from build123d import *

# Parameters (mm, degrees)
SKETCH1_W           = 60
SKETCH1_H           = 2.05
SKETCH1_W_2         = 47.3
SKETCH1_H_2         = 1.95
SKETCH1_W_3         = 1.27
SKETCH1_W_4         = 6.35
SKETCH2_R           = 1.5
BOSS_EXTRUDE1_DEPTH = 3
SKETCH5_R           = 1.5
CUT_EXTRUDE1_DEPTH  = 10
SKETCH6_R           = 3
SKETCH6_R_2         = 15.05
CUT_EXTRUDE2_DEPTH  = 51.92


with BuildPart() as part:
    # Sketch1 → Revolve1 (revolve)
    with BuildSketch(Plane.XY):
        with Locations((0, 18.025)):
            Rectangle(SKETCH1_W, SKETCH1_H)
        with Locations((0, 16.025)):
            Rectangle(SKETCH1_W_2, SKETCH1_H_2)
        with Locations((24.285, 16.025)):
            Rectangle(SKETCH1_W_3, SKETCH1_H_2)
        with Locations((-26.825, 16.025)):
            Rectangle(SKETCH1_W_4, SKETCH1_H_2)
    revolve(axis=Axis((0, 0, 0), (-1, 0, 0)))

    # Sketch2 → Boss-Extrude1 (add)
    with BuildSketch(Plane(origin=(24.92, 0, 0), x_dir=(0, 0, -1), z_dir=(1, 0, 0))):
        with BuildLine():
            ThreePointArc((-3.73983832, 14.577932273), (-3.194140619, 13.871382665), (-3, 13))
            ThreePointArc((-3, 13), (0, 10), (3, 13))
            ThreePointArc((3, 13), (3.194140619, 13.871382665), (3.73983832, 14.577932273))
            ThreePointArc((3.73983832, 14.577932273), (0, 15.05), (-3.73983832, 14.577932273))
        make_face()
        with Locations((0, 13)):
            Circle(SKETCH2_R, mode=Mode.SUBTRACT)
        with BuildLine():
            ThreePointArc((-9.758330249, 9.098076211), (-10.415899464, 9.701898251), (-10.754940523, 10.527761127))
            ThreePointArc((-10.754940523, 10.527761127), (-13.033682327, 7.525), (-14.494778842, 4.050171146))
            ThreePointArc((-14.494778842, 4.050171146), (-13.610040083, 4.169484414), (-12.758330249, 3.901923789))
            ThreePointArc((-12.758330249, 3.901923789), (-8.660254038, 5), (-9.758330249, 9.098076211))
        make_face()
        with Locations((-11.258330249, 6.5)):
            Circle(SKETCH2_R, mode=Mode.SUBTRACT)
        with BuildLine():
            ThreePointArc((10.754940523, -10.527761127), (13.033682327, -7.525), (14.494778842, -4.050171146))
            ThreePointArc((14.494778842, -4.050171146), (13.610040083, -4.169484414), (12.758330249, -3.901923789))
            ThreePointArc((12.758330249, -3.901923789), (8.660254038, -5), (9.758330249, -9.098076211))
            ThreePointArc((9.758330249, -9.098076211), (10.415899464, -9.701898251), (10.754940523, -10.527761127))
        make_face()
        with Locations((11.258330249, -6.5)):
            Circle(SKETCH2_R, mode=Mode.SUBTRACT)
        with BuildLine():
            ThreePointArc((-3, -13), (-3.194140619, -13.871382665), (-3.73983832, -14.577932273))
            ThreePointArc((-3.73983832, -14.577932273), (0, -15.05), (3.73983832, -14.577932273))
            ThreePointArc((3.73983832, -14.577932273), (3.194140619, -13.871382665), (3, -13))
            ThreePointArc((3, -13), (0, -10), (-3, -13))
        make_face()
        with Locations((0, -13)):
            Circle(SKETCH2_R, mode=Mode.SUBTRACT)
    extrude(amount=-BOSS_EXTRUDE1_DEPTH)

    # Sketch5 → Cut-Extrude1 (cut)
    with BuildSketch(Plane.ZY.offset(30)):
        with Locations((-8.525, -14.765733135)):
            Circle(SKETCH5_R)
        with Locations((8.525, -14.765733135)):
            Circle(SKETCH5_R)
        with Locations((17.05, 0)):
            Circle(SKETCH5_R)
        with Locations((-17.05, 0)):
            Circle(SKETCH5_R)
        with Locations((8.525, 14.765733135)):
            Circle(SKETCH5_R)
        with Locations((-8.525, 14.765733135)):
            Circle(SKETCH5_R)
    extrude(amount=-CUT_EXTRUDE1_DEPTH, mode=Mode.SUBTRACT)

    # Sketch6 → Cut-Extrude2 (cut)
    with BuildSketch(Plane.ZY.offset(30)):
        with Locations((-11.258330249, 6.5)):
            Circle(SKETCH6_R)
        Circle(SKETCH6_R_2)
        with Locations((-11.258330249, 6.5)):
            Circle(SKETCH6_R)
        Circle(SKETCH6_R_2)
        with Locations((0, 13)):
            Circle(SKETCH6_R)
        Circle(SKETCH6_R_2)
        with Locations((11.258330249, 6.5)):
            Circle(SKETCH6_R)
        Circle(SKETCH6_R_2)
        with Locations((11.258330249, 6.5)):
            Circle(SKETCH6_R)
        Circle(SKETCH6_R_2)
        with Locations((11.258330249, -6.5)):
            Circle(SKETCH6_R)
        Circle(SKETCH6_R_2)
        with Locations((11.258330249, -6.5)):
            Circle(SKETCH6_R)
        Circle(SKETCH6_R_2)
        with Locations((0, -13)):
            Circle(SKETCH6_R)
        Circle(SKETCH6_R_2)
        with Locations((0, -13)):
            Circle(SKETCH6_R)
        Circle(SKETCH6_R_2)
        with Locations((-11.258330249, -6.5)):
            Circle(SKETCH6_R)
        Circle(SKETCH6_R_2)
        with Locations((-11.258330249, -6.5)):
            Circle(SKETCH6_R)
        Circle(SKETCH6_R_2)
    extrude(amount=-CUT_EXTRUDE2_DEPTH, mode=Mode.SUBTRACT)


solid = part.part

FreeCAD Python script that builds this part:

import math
import FreeCAD as App
import Part
import Sketcher

V = App.Vector

doc = App.newDocument("Part")
body = doc.addObject("PartDesign::Body", "Body")

sketch1 = body.newObject("Sketcher::SketchObject", "Sketch")
sketch1.AttachmentSupport = (doc.getObject("XY_Plane"), [""])
sketch1.MapMode = "FlatFace"
sketch1.addGeometry([
    Part.LineSegment(V(-30, 19.1, 0), V(-30, 15.1, 0)),
    Part.LineSegment(V(-30, 15.1, 0), V(24.9, 15.1, 0)),
    Part.LineSegment(V(24.9, 15.1, 0), V(24.9, 17, 0)),
    Part.LineSegment(V(24.9, 17, 0), V(30, 17, 0)),
    Part.LineSegment(V(30, 17, 0), V(30, 19.1, 0)),
    Part.LineSegment(V(30, 19.1, 0), V(-30, 19.1, 0)),
], False)
sketch1.addConstraint([
    Sketcher.Constraint("Coincident", 0, 2, 1, 1),
    Sketcher.Constraint("Coincident", 1, 2, 2, 1),
    Sketcher.Constraint("Coincident", 2, 2, 3, 1),
    Sketcher.Constraint("Coincident", 3, 2, 4, 1),
    Sketcher.Constraint("Coincident", 4, 2, 5, 1),
    Sketcher.Constraint("Coincident", 5, 2, 0, 1),
    Sketcher.Constraint("Vertical", 0),
    Sketcher.Constraint("Horizontal", 1),
    Sketcher.Constraint("Vertical", 2),
    Sketcher.Constraint("Horizontal", 3),
    Sketcher.Constraint("Vertical", 4),
    Sketcher.Constraint("Horizontal", 5),
    Sketcher.Constraint("DistanceX", 5, 2, 5, 1, 60.0),
    Sketcher.Constraint("DistanceY", 0, 2, 0, 1, 4.0),
    Sketcher.Constraint("DistanceX", 0, 2, -1, 1, 30.0),
    Sketcher.Constraint("DistanceY", -1, 1, 2, 2, 17.0),
    Sketcher.Constraint("DistanceX", 1, 1, 1, 2, 54.92),
    Sketcher.Constraint("DistanceY", 2, 1, 2, 2, 1.95),
])
revolution = body.newObject("PartDesign::Revolution", "Revolution")
revolution.Profile = sketch1
revolution.ReferenceAxis = (sketch1, ["H_Axis"])
revolution.Angle = 360

sketch2 = body.newObject("Sketcher::SketchObject", "Sketch001")
sketch2.AttachmentSupport = (doc.getObject("YZ_Plane"), [""])
sketch2.MapMode = "FlatFace"
sketch2.AttachmentOffset = App.Placement(V(0, 0, 24.92), App.Rotation())
sketch2.addGeometry([
    Part.ArcOfCircle(Part.Circle(V(13, 5.1, 0), V(0, 0, 1), 2.1), math.radians(-90), math.radians(-40)),
    Part.ArcOfCircle(Part.Circle(V(13, 0, 0), V(0, 0, 1), 3), math.radians(90), math.radians(270)),
    Part.ArcOfCircle(Part.Circle(V(13, -5.1, 0), V(0, 0, 1), 2.1), math.radians(40), math.radians(90)),
    Part.ArcOfCircle(Part.Circle(V(0, 0, 0), V(0, 0, 1), 15.1), math.radians(-14), math.radians(14)),
    Part.Circle(V(13, 0, 0), V(0, 0, 1), 1.5),
    Part.ArcOfCircle(Part.Circle(V(10.9, 8.7, 0), V(0, 0, 1), 2.1), math.radians(100), math.radians(150)),
    Part.ArcOfCircle(Part.Circle(V(0, 0, 0), V(0, 0, 1), 15), math.radians(46), math.radians(74)),
    Part.ArcOfCircle(Part.Circle(V(2.1, 13.8, 0), V(0, 0, 1), 2.1), math.radians(-30), math.radians(20)),
    Part.ArcOfCircle(Part.Circle(V(6.5, 11.3, 0), V(0, 0, 1), 3), math.radians(150), math.radians(330)),
    Part.Circle(V(6.5, 11.3, 0), V(0, 0, 1), 1.5),
    Part.ArcOfCircle(Part.Circle(V(0, 0, 0), V(0, 0, 1), 15), math.radians(-134), math.radians(-106)),
    Part.ArcOfCircle(Part.Circle(V(-2.1, -13.8, 0), V(0, 0, 1), 2.1), math.radians(150), math.radians(200)),
    Part.ArcOfCircle(Part.Circle(V(-6.5, -11.3, 0), V(0, 0, 1), 3), math.radians(-30), math.radians(150)),
    Part.ArcOfCircle(Part.Circle(V(-10.9, -8.7, 0), V(0, 0, 1), 2.1), math.radians(-80), math.radians(-30)),
    Part.Circle(V(-6.5, -11.3, 0), V(0, 0, 1), 1.5),
    Part.ArcOfCircle(Part.Circle(V(-13, 5.1, 0), V(0, 0, 1), 2.1), math.radians(-140), math.radians(-90)),
    Part.ArcOfCircle(Part.Circle(V(0, 0, 0), V(0, 0, 1), 15.1), math.radians(166), math.radians(194)),
    Part.ArcOfCircle(Part.Circle(V(-13, -5.1, 0), V(0, 0, 1), 2.1), math.radians(90), math.radians(140)),
    Part.ArcOfCircle(Part.Circle(V(-13, 0, 0), V(0, 0, 1), 3), math.radians(-90), math.radians(90)),
    Part.Circle(V(-13, 0, 0), V(0, 0, 1), 1.5),
], False)
sketch2.addConstraint([
    Sketcher.Constraint("Tangent", 0, 1, 1, 1),
    Sketcher.Constraint("Tangent", 1, 2, 2, 2),
    Sketcher.Constraint("Coincident", 2, 1, 3, 1),
    Sketcher.Constraint("Coincident", 3, 2, 0, 2),
    Sketcher.Constraint("Coincident", 5, 1, 6, 1),
    Sketcher.Constraint("Coincident", 6, 2, 7, 2),
    Sketcher.Constraint("Tangent", 7, 1, 8, 1),
    Sketcher.Constraint("Tangent", 8, 2, 5, 2),
    Sketcher.Constraint("Coincident", 10, 2, 11, 2),
    Sketcher.Constraint("Tangent", 11, 1, 12, 1),
    Sketcher.Constraint("Tangent", 12, 2, 13, 2),
    Sketcher.Constraint("Coincident", 13, 1, 10, 1),
    Sketcher.Constraint("Coincident", 15, 1, 16, 1),
    Sketcher.Constraint("Coincident", 16, 2, 17, 2),
    Sketcher.Constraint("Tangent", 17, 1, 18, 1),
    Sketcher.Constraint("Tangent", 18, 2, 15, 2),
    Sketcher.Constraint("Coincident", 3, 3, -1, 1),
    Sketcher.Constraint("Coincident", 6, 3, -1, 1),
    Sketcher.Constraint("Coincident", 10, 3, -1, 1),
    Sketcher.Constraint("Coincident", 16, 3, -1, 1),
    Sketcher.Constraint("Coincident", 4, 3, 1, 3),
    Sketcher.Constraint("Coincident", 9, 3, 8, 3),
    Sketcher.Constraint("Coincident", 14, 3, 12, 3),
    Sketcher.Constraint("Coincident", 19, 3, 18, 3),
    Sketcher.Constraint("Equal", 0, 2),
    Sketcher.Constraint("Equal", 2, 5),
    Sketcher.Constraint("Equal", 3, 6),
    Sketcher.Constraint("Equal", 5, 7),
    Sketcher.Constraint("Equal", 1, 8),
    Sketcher.Constraint("Equal", 4, 9),
    Sketcher.Constraint("Equal", 6, 10),
    Sketcher.Constraint("Equal", 7, 11),
    Sketcher.Constraint("Equal", 8, 12),
    Sketcher.Constraint("Equal", 11, 13),
    Sketcher.Constraint("Equal", 9, 14),
    Sketcher.Constraint("Equal", 13, 15),
    Sketcher.Constraint("Equal", 10, 16),
    Sketcher.Constraint("Equal", 15, 17),
    Sketcher.Constraint("Equal", 12, 18),
    Sketcher.Constraint("Equal", 14, 19),
    Sketcher.Constraint("Symmetric", 7, 3, 11, 3, -1, 1),
    Sketcher.Constraint("Symmetric", 2, 3, 15, 3, -1, 1),
    Sketcher.Constraint("Symmetric", 0, 3, 15, 3, -2),
    Sketcher.Constraint("Horizontal", 2, 1, 16, 2),
    Sketcher.Constraint("Vertical", 0, 3, 1, 3),
    Sketcher.Constraint("Vertical", 17, 3, 18, 3),
    Sketcher.Constraint("Diameter", 4, 3.0),
    Sketcher.Constraint("Radius", 1, 3.0),
    Sketcher.Constraint("Radius", 3, 15.05),
    Sketcher.Constraint("DistanceX", -1, 1, 0, 3, 13.0),
    Sketcher.Constraint("DistanceY", 8, 2, 7, 1, 3.0),
    Sketcher.Constraint("DistanceY", 11, 1, 12, 2, 3.0),
    Sketcher.Constraint("DistanceX", -1, 1, 8, 3, 6.5),
    Sketcher.Constraint("DistanceX", 12, 3, -1, 1, 6.5),
    Sketcher.Constraint("DistanceY", 8, 3, 7, 1, 1.5),
    Sketcher.Constraint("Radius", 0, 2.052632),
    Sketcher.Constraint("DistanceY", 0, 3, 8, 3, 6.205699),
])
pad1 = body.newObject("PartDesign::Pad", "Pad")
pad1.Profile = sketch2
pad1.Length = 3
pad1.Reversed = True

sketch3 = body.newObject("Sketcher::SketchObject", "Sketch002")
sketch3.AttachmentSupport = (doc.getObject("YZ_Plane"), [""])
sketch3.MapMode = "FlatFace"
sketch3.AttachmentOffset = App.Placement(V(0, 0, -30), App.Rotation())
sketch3.addGeometry([
    Part.Circle(V(-14.8, -8.5, 0), V(0, 0, 1), 1.5),
    Part.Circle(V(-14.8, 8.5, 0), V(0, 0, 1), 1.5),
    Part.Circle(V(0, 17.1, 0), V(0, 0, 1), 1.5),
    Part.Circle(V(0, -17.1, 0), V(0, 0, 1), 1.5),
    Part.Circle(V(14.8, 8.5, 0), V(0, 0, 1), 1.5),
    Part.Circle(V(14.8, -8.5, 0), V(0, 0, 1), 1.5),
], False)
sketch3.addConstraint([
    Sketcher.Constraint("Equal", 0, 1),
    Sketcher.Constraint("Equal", 1, 2),
    Sketcher.Constraint("Equal", 2, 3),
    Sketcher.Constraint("Equal", 3, 4),
    Sketcher.Constraint("Equal", 4, 5),
    Sketcher.Constraint("Symmetric", 2, 3, 3, 3, -1, 1),
    Sketcher.Constraint("Symmetric", 0, 3, 4, 3, -1, 1),
    Sketcher.Constraint("Symmetric", 1, 3, 5, 3, -1, 1),
    Sketcher.Constraint("Symmetric", 1, 3, 4, 3, -2),
    Sketcher.Constraint("PointOnObject", 2, 3, -2),
    Sketcher.Constraint("Diameter", 0, 3.0),
    Sketcher.Constraint("DistanceY", 3, 3, 2, 3, 34.1),
    Sketcher.Constraint("DistanceY", 0, 3, 1, 3, 17.05),
    Sketcher.Constraint("DistanceX", 0, 3, -1, 1, 14.765733),
])
pocket1 = body.newObject("PartDesign::Pocket", "Pocket")
pocket1.Profile = sketch3
pocket1.Length = 10
pocket1.Reversed = True

sketch4 = body.newObject("Sketcher::SketchObject", "Sketch003")
sketch4.AttachmentSupport = (doc.getObject("YZ_Plane"), [""])
sketch4.MapMode = "FlatFace"
sketch4.AttachmentOffset = App.Placement(V(0, 0, -30), App.Rotation())
sketch4.addGeometry([
    Part.ArcOfCircle(Part.Circle(V(-13, 0, 0), V(0, 0, 1), 3), math.radians(128), math.radians(232)),
    Part.ArcOfCircle(Part.Circle(V(0, 0, 0), V(0, 0, 1), 15.1), math.radians(129), math.radians(171)),
    Part.ArcOfCircle(Part.Circle(V(-6.5, 11.3, 0), V(0, 0, 1), 3), math.radians(68), math.radians(172)),
    Part.ArcOfCircle(Part.Circle(V(0, 0, 0), V(0, 0, 1), 15.1), math.radians(69), math.radians(111)),
    Part.ArcOfCircle(Part.Circle(V(6.5, 11.3, 0), V(0, 0, 1), 3), math.radians(8), math.radians(112)),
    Part.ArcOfCircle(Part.Circle(V(0, 0, 0), V(0, 0, 1), 15.1), math.radians(9), math.radians(51)),
    Part.ArcOfCircle(Part.Circle(V(13, 0, 0), V(0, 0, 1), 3), math.radians(-52), math.radians(52)),
    Part.ArcOfCircle(Part.Circle(V(0, 0, 0), V(0, 0, 1), 15.1), math.radians(-51), math.radians(-9)),
    Part.ArcOfCircle(Part.Circle(V(6.5, -11.3, 0), V(0, 0, 1), 3), math.radians(-112), math.radians(-8)),
    Part.ArcOfCircle(Part.Circle(V(0, 0, 0), V(0, 0, 1), 15.1), math.radians(-111), math.radians(-69)),
    Part.ArcOfCircle(Part.Circle(V(-6.5, -11.3, 0), V(0, 0, 1), 3), math.radians(-172), math.radians(-68)),
    Part.ArcOfCircle(Part.Circle(V(0, 0, 0), V(0, 0, 1), 15.1), math.radians(-171), math.radians(-129)),
], False)
sketch4.addConstraint([
    Sketcher.Constraint("Coincident", 0, 1, 1, 2),
    Sketcher.Constraint("Coincident", 1, 1, 2, 2),
    Sketcher.Constraint("Coincident", 2, 1, 3, 2),
    Sketcher.Constraint("Coincident", 3, 1, 4, 2),
    Sketcher.Constraint("Coincident", 4, 1, 5, 2),
    Sketcher.Constraint("Coincident", 5, 1, 6, 2),
    Sketcher.Constraint("Coincident", 6, 1, 7, 2),
    Sketcher.Constraint("Coincident", 7, 1, 8, 2),
    Sketcher.Constraint("Coincident", 8, 1, 9, 2),
    Sketcher.Constraint("Coincident", 9, 1, 10, 2),
    Sketcher.Constraint("Coincident", 10, 1, 11, 2),
    Sketcher.Constraint("Coincident", 11, 1, 0, 2),
    Sketcher.Constraint("Coincident", 1, 3, -1, 1),
    Sketcher.Constraint("Coincident", 3, 3, -1, 1),
    Sketcher.Constraint("Coincident", 5, 3, -1, 1),
    Sketcher.Constraint("Coincident", 7, 3, -1, 1),
    Sketcher.Constraint("Coincident", 9, 3, -1, 1),
    Sketcher.Constraint("Coincident", 11, 3, -1, 1),
    Sketcher.Constraint("Equal", 0, 2),
    Sketcher.Constraint("Equal", 1, 3),
    Sketcher.Constraint("Equal", 2, 4),
    Sketcher.Constraint("Equal", 3, 5),
    Sketcher.Constraint("Equal", 4, 6),
    Sketcher.Constraint("Equal", 5, 7),
    Sketcher.Constraint("Equal", 6, 8),
    Sketcher.Constraint("Equal", 7, 9),
    Sketcher.Constraint("Equal", 8, 10),
    Sketcher.Constraint("Equal", 9, 11),
    Sketcher.Constraint("Symmetric", 0, 3, 6, 3, -1, 1),
    Sketcher.Constraint("Symmetric", 2, 3, 8, 3, -1, 1),
    Sketcher.Constraint("Symmetric", 4, 3, 10, 3, -1, 1),
    Sketcher.Constraint("Symmetric", 2, 3, 4, 3, -2),
    Sketcher.Constraint("PointOnObject", 0, 3, -1),
    Sketcher.Constraint("Radius", 0, 3.0),
    Sketcher.Constraint("Radius", 1, 15.05),
    Sketcher.Constraint("DistanceX", 0, 3, -1, 1, 13.0),
    Sketcher.Constraint("DistanceX", 2, 3, 4, 3, 13.0),
    Sketcher.Constraint("DistanceY", -1, 1, 2, 3, 11.25833),
])
pocket2 = body.newObject("PartDesign::Pocket", "Pocket001")
pocket2.Profile = sketch4
pocket2.Length = 51.92
pocket2.Reversed = True

doc.recompute()
